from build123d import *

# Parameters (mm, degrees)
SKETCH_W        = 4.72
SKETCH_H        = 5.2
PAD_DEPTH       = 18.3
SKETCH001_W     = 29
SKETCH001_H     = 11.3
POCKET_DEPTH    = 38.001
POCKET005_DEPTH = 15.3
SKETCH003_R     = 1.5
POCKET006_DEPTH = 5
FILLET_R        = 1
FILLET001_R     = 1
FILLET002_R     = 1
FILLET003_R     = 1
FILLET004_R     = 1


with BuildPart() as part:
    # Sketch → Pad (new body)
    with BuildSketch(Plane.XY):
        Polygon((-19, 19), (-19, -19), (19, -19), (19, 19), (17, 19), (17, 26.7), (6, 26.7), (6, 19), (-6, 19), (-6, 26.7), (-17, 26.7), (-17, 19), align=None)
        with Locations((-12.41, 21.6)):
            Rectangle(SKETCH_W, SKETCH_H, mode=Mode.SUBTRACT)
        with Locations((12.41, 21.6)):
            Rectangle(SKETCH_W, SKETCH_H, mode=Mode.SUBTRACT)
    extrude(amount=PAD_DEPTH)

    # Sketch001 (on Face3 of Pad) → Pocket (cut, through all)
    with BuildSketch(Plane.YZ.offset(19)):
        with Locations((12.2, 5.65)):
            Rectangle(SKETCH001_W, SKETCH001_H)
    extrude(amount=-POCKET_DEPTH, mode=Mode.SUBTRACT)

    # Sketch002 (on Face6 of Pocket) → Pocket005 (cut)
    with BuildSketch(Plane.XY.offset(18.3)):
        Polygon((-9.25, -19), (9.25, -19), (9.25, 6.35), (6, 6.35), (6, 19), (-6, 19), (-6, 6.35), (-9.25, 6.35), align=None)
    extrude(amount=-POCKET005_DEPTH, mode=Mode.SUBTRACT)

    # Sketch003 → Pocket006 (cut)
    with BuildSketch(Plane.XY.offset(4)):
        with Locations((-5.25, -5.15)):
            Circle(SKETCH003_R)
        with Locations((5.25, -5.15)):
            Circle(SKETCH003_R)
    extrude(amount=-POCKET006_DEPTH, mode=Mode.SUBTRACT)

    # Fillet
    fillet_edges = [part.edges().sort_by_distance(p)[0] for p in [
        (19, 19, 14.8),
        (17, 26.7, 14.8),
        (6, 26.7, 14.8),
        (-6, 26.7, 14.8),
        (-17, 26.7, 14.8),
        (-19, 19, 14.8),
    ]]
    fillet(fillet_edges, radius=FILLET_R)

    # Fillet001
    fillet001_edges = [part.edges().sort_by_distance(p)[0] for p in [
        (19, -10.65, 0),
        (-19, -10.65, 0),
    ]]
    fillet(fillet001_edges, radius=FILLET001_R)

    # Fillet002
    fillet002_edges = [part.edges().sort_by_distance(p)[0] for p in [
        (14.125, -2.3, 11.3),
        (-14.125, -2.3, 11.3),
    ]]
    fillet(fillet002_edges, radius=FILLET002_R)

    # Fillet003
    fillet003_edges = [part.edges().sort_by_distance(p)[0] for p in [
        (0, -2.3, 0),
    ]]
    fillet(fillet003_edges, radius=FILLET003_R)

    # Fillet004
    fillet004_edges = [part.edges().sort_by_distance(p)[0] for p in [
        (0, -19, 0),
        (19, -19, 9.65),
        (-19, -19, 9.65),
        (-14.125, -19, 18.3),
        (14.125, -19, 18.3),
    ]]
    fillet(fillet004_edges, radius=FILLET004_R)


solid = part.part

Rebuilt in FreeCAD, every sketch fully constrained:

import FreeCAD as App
import Part
import Sketcher
from FreeCAD import Vector
Q = App.Units.Quantity


def edges_at(feature, points):
    """Names of the edges that pass closest to the given points."""
    edges = feature.Shape.Edges
    near = lambda p: min(range(len(edges)), key=lambda i: edges[i].distToShape(Part.Vertex(*p))[0])
    return sorted({f"Edge{near(p) + 1}" for p in points})

doc = App.newDocument("Part")
body = doc.addObject("PartDesign::Body", "Body")

# Sketch on XY plane
sketch1 = doc.addObject("Sketcher::SketchObject", "Sketch")
body.addObject(sketch1)
sketch1.AttachmentSupport = (doc.XY_Plane, [""])
sketch1.MapMode = "FlatFace"
sketch1.addGeometry([
    Part.LineSegment(Vector(-19, 19, 0), Vector(-19, -19, 0)),  # 0
    Part.LineSegment(Vector(-19, -19, 0), Vector(19, -19, 0)),  # 1
    Part.LineSegment(Vector(19, -19, 0), Vector(19, 19, 0)),  # 2
    Part.LineSegment(Vector(19, 19, 0), Vector(17, 19, 0)),  # 3
    Part.LineSegment(Vector(17, 19, 0), Vector(17, 26.7, 0)),  # 4
    Part.LineSegment(Vector(17, 26.7, 0), Vector(6, 26.7, 0)),  # 5
    Part.LineSegment(Vector(6, 26.7, 0), Vector(6, 19, 0)),  # 6
    Part.LineSegment(Vector(6, 19, 0), Vector(-6, 19, 0)),  # 7
    Part.LineSegment(Vector(-6, 19, 0), Vector(-6, 26.7, 0)),  # 8
    Part.LineSegment(Vector(-6, 26.7, 0), Vector(-17, 26.7, 0)),  # 9
    Part.LineSegment(Vector(-17, 26.7, 0), Vector(-17, 19, 0)),  # 10
    Part.LineSegment(Vector(-17, 19, 0), Vector(-19, 19, 0)),  # 11
    Part.LineSegment(Vector(-10.1, 19, 0), Vector(-14.8, 19, 0)),  # 12
    Part.LineSegment(Vector(-14.8, 19, 0), Vector(-14.8, 24.2, 0)),  # 13
    Part.LineSegment(Vector(-14.8, 24.2, 0), Vector(-10.1, 24.2, 0)),  # 14
    Part.LineSegment(Vector(-10.1, 24.2, 0), Vector(-10.1, 19, 0)),  # 15
    Part.LineSegment(Vector(14.8, 19, 0), Vector(10.1, 19, 0)),  # 16
    Part.LineSegment(Vector(10.1, 19, 0), Vector(10.1, 24.2, 0)),  # 17
    Part.LineSegment(Vector(10.1, 24.2, 0), Vector(14.8, 24.2, 0)),  # 18
    Part.LineSegment(Vector(14.8, 24.2, 0), Vector(14.8, 19, 0)),  # 19
], False)
sketch1.addConstraint([
    Sketcher.Constraint("Coincident", 0, 2, 1, 1),
    Sketcher.Constraint("Coincident", 1, 2, 2, 1),
    Sketcher.Constraint("Coincident", 2, 2, 3, 1),
    Sketcher.Constraint("Coincident", 3, 2, 4, 1),
    Sketcher.Constraint("Coincident", 4, 2, 5, 1),
    Sketcher.Constraint("Coincident", 5, 2, 6, 1),
    Sketcher.Constraint("Coincident", 6, 2, 7, 1),
    Sketcher.Constraint("Coincident", 7, 2, 8, 1),
    Sketcher.Constraint("Coincident", 8, 2, 9, 1),
    Sketcher.Constraint("Coincident", 9, 2, 10, 1),
    Sketcher.Constraint("Coincident", 10, 2, 11, 1),
    Sketcher.Constraint("Coincident", 11, 2, 0, 1),
    Sketcher.Constraint("Coincident", 12, 2, 13, 1),
    Sketcher.Constraint("Coincident", 13, 2, 14, 1),
    Sketcher.Constraint("Coincident", 14, 2, 15, 1),
    Sketcher.Constraint("Coincident", 15, 2, 12, 1),
    Sketcher.Constraint("Coincident", 16, 2, 17, 1),
    Sketcher.Constraint("Coincident", 17, 2, 18, 1),
    Sketcher.Constraint("Coincident", 18, 2, 19, 1),
    Sketcher.Constraint("Coincident", 19, 2, 16, 1),
    Sketcher.Constraint("Vertical", 0),
    Sketcher.Constraint("Horizontal", 1),
    Sketcher.Constraint("Vertical", 2),
    Sketcher.Constraint("Horizontal", 3),
    Sketcher.Constraint("Vertical", 4),
    Sketcher.Constraint("Horizontal", 5),
    Sketcher.Constraint("Vertical", 6),
    Sketcher.Constraint("Horizontal", 7),
    Sketcher.Constraint("Vertical", 8),
    Sketcher.Constraint("Horizontal", 9),
    Sketcher.Constraint("Vertical", 10),
    Sketcher.Constraint("Horizontal", 11),
    Sketcher.Constraint("Horizontal", 12),
    Sketcher.Constraint("Vertical", 13),
    Sketcher.Constraint("Horizontal", 14),
    Sketcher.Constraint("Vertical", 15),
    Sketcher.Constraint("Horizontal", 16),
    Sketcher.Constraint("Vertical", 17),
    Sketcher.Constraint("Horizontal", 18),
    Sketcher.Constraint("Vertical", 19),
    Sketcher.Constraint("Symmetric", 0, 2, 2, 2, -1, 1),
    Sketcher.Constraint("Symmetric", 5, 2, 8, 2, -2),
    Sketcher.Constraint("Symmetric", 3, 2, 10, 2, -2),
    Sketcher.Constraint("Symmetric", 15, 2, 16, 2, -2),
    Sketcher.Constraint("Symmetric", 13, 2, 18, 2, -2),
    Sketcher.Constraint("Horizontal", 3, 2, 6, 2),
    Sketcher.Constraint("Horizontal", 11, 2, 12, 2),
    Sketcher.Constraint("Equal", 1, 0),
    Sketcher.Constraint("DistanceX", 1, 1, 1, 2, Q("38 mm")),
    Sketcher.Constraint("DistanceX", 3, 2, 3, 1, Q("2 mm")),
    Sketcher.Constraint("DistanceX", 5, 2, 5, 1, Q("11 mm")),
    Sketcher.Constraint("DistanceY", 4, 1, 4, 2, Q("7.7 mm")),
    Sketcher.Constraint("DistanceY", 13, 1, 13, 2, Q("5.2 mm")),
    Sketcher.Constraint("DistanceX", 12, 2, 12, 1, Q("4.72 mm")),
    Sketcher.Constraint("DistanceX", 12, 2, -1, 1, Q("14.77 mm")),
])
pad1 = doc.addObject("PartDesign::Pad", "Pad")
body.addObject(pad1)
pad1.Profile = sketch1
pad1.Length = 18.3

# Sketch on YZ plane
sketch2 = doc.addObject("Sketcher::SketchObject", "Sketch001")
body.addObject(sketch2)
sketch2.AttachmentSupport = (doc.YZ_Plane, [""])
sketch2.MapMode = "FlatFace"
sketch2.AttachmentOffset = App.Placement(Vector(0, 0, 19), App.Rotation())
sketch2.addGeometry([
    Part.LineSegment(Vector(-2, 11, 0), Vector(-2, 0, 0)),
    Part.LineSegment(Vector(-2, 0, 0), Vector(27, 0, 0)),
    Part.LineSegment(Vector(27, 0, 0), Vector(27, 11, 0)),
    Part.LineSegment(Vector(27, 11, 0), Vector(-2, 11, 0)),
], False)
sketch2.addConstraint([
    Sketcher.Constraint("Coincident", 0, 2, 1, 1),
    Sketcher.Constraint("Coincident", 1, 2, 2, 1),
    Sketcher.Constraint("Coincident", 2, 2, 3, 1),
    Sketcher.Constraint("Coincident", 3, 2, 0, 1),
    Sketcher.Constraint("Vertical", 0),
    Sketcher.Constraint("Horizontal", 1),
    Sketcher.Constraint("Vertical", 2),
    Sketcher.Constraint("Horizontal", 3),
    Sketcher.Constraint("PointOnObject", 0, 2, -1),
    Sketcher.Constraint("DistanceX", 1, 1, 1, 2, Q("29 mm")),
    Sketcher.Constraint("DistanceY", 0, 2, 0, 1, Q("11.3 mm")),
    Sketcher.Constraint("DistanceX", 0, 2, -1, 1, Q("2.3 mm")),
])
pocket1 = doc.addObject("PartDesign::Pocket", "Pocket")
body.addObject(pocket1)
pocket1.Profile = sketch2
pocket1.Type = "ThroughAll"

# Sketch on XY plane
sketch3 = doc.addObject("Sketcher::SketchObject", "Sketch002")
body.addObject(sketch3)
sketch3.AttachmentSupport = (doc.XY_Plane, [""])
sketch3.MapMode = "FlatFace"
sketch3.AttachmentOffset = App.Placement(Vector(0, 0, 18.3), App.Rotation())
sketch3.addGeometry([
    Part.LineSegment(Vector(-9.2, -19, 0), Vector(9.2, -19, 0)),  # 0
    Part.LineSegment(Vector(9.2, -19, 0), Vector(9.2, 6.3, 0)),  # 1
    Part.LineSegment(Vector(9.2, 6.3, 0), Vector(6, 6.3, 0)),  # 2
    Part.LineSegment(Vector(6, 6.3, 0), Vector(6, 19, 0)),  # 3
    Part.LineSegment(Vector(6, 19, 0), Vector(-6, 19, 0)),  # 4
    Part.LineSegment(Vector(-6, 19, 0), Vector(-6, 6.3, 0)),  # 5
    Part.LineSegment(Vector(-6, 6.3, 0), Vector(-9.2, 6.3, 0)),  # 6
    Part.LineSegment(Vector(-9.2, 6.3, 0), Vector(-9.2, -19, 0)),  # 7
], False)
sketch3.addConstraint([
    Sketcher.Constraint("Coincident", 0, 2, 1, 1),
    Sketcher.Constraint("Coincident", 1, 2, 2, 1),
    Sketcher.Constraint("Coincident", 2, 2, 3, 1),
    Sketcher.Constraint("Coincident", 3, 2, 4, 1),
    Sketcher.Constraint("Coincident", 4, 2, 5, 1),
    Sketcher.Constraint("Coincident", 5, 2, 6, 1),
    Sketcher.Constraint("Coincident", 6, 2, 7, 1),
    Sketcher.Constraint("Coincident", 7, 2, 0, 1),
    Sketcher.Constraint("Horizontal", 0),
    Sketcher.Constraint("Vertical", 1),
    Sketcher.Constraint("Horizontal", 2),
    Sketcher.Constraint("Vertical", 3),
    Sketcher.Constraint("Horizontal", 4),
    Sketcher.Constraint("Vertical", 5),
    Sketcher.Constraint("Horizontal", 6),
    Sketcher.Constraint("Vertical", 7),
    Sketcher.Constraint("Symmetric", 2, 2, 5, 2, -2),
    Sketcher.Constraint("Equal", 2, 6),
    Sketcher.Constraint("DistanceX", 4, 2, 4, 1, Q("12 mm")),
    Sketcher.Constraint("DistanceX", 0, 1, 0, 2, Q("18.5 mm")),
    Sketcher.Constraint("DistanceY", 0, 2, -1, 1, Q("19 mm")),
    Sketcher.Constraint("DistanceY", -1, 1, 3, 2, Q("19 mm")),
    Sketcher.Constraint("DistanceY", 1, 1, 1, 2, Q("25.35 mm")),
])
pocket2 = doc.addObject("PartDesign::Pocket", "Pocket001")
body.addObject(pocket2)
pocket2.Profile = sketch3
pocket2.Length = 15.3

# Sketch on XY plane
sketch4 = doc.addObject("Sketcher::SketchObject", "Sketch003")
body.addObject(sketch4)
sketch4.AttachmentSupport = (doc.XY_Plane, [""])
sketch4.MapMode = "FlatFace"
sketch4.AttachmentOffset = App.Placement(Vector(0, 0, 4), App.Rotation())
sketch4.addGeometry([
    Part.Circle(Vector(-5.2, -5.2, 0), Vector(0, 0, 1), 1.5),
    Part.Circle(Vector(5.2, -5.2, 0), Vector(0, 0, 1), 1.5),
], False)
sketch4.addConstraint([
    Sketcher.Constraint("Equal", 0, 1),
    Sketcher.Constraint("Symmetric", 0, 3, 1, 3, -2),
    Sketcher.Constraint("Diameter", 0, Q("3 mm")),
    Sketcher.Constraint("DistanceX", 0, 3, 1, 3, Q("10.5 mm")),
    Sketcher.Constraint("DistanceY", 0, 3, -1, 1, Q("5.15 mm")),
])
pocket3 = doc.addObject("PartDesign::Pocket", "Pocket002")
body.addObject(pocket3)
pocket3.Profile = sketch4
pocket3.Length = 5
doc.recompute()

fillet = doc.addObject("PartDesign::Fillet", "Fillet")
body.addObject(fillet)
fillet.Base = (pocket3, edges_at(pocket3, [
    (19, 19, 14.8),
    (17, 26.7, 14.8),
    (6, 26.7, 14.8),
    (-6, 26.7, 14.8),
    (-17, 26.7, 14.8),
    (-19, 19, 14.8),
]))
fillet.Radius = 1
doc.recompute()

fillet2 = doc.addObject("PartDesign::Fillet", "Fillet001")
body.addObject(fillet2)
fillet2.Base = (fillet, edges_at(fillet, [(19, -10.65, 0), (-19, -10.65, 0)]))
fillet2.Radius = 1
doc.recompute()

fillet3 = doc.addObject("PartDesign::Fillet", "Fillet002")
body.addObject(fillet3)
fillet3.Base = (fillet2, edges_at(fillet2, [(14.125, -2.3, 11.3), (-14.125, -2.3, 11.3)]))
fillet3.Radius = 1
doc.recompute()

fillet4 = doc.addObject("PartDesign::Fillet", "Fillet003")
body.addObject(fillet4)
fillet4.Base = (fillet3, edges_at(fillet3, [(0, -2.3, 0)]))
fillet4.Radius = 1
doc.recompute()

fillet5 = doc.addObject("PartDesign::Fillet", "Fillet004")
body.addObject(fillet5)
fillet5.Base = (fillet4, edges_at(fillet4, [
    (0, -19, 0),
    (19, -19, 9.65),
    (-19, -19, 9.65),
    (-14.125, -19, 18.3),
    (14.125, -19, 18.3),
]))
fillet5.Radius = 1

doc.recompute()
